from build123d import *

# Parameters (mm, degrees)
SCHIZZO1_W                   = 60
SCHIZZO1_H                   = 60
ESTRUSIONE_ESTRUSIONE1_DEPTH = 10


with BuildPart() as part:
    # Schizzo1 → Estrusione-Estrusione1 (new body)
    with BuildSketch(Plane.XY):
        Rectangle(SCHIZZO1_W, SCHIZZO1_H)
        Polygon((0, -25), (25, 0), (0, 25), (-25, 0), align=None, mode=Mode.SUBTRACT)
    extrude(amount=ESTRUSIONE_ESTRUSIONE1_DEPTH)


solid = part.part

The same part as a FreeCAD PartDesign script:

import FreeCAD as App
import Part
import Sketcher
from FreeCAD import Vector

doc = App.newDocument("Part")
body = doc.addObject("PartDesign::Body", "Body")

# Sketch on XY plane
sketch1 = body.newObject("Sketcher::SketchObject", "Sketch")
sketch1.AttachmentSupport = (doc.getObject("XY_Plane"), [""])
sketch1.MapMode = "FlatFace"
sketch1.addGeometry([
    Part.LineSegment(Vector(-30, 30, 0), Vector(-30, -30, 0)),  # 0
    Part.LineSegment(Vector(-30, -30, 0), Vector(30, -30, 0)),  # 1
    Part.LineSegment(Vector(30, -30, 0), Vector(30, 30, 0)),  # 2
    Part.LineSegment(Vector(30, 30, 0), Vector(-30, 30, 0)),  # 3
    Part.LineSegment(Vector(25, 0, 0), Vector(0, -25, 0)),  # 4
    Part.LineSegment(Vector(0, -25, 0), Vector(-25, 0, 0)),  # 5
    Part.LineSegment(Vector(-25, 0, 0), Vector(0, 25, 0)),  # 6
    Part.LineSegment(Vector(0, 25, 0), Vector(25, 0, 0)),  # 7
], False)
sketch1.addConstraint([
    Sketcher.Constraint("Coincident", 0, 2, 1, 1),
    Sketcher.Constraint("Coincident", 1, 2, 2, 1),
    Sketcher.Constraint("Coincident", 2, 2, 3, 1),
    Sketcher.Constraint("Coincident", 3, 2, 0, 1),
    Sketcher.Constraint("Coincident", 4, 2, 5, 1),
    Sketcher.Constraint("Coincident", 5, 2, 6, 1),
    Sketcher.Constraint("Coincident", 6, 2, 7, 1),
    Sketcher.Constraint("Coincident", 7, 2, 4, 1),
    Sketcher.Constraint("Vertical", 0),
    Sketcher.Constraint("Horizontal", 1),
    Sketcher.Constraint("Vertical", 2),
    Sketcher.Constraint("Horizontal", 3),
    Sketcher.Constraint("Symmetric", 0, 2, 2, 2, -1, 1),
    Sketcher.Constraint("Symmetric", 4, 2, 6, 2, -1, 1),
    Sketcher.Constraint("Symmetric", 5, 2, 7, 2, -1, 1),
    Sketcher.Constraint("PointOnObject", 4, 2, -2),
    Sketcher.Constraint("PointOnObject", 5, 2, -1),
    Sketcher.Constraint("Perpendicular", 4, 5),
    Sketcher.Constraint("Equal", 3, 0),
    Sketcher.Constraint("DistanceX", 1, 1, 1, 2, 60.0),
    Sketcher.Constraint("DistanceY", 4, 2, -1, 1, 25.0),
])
pad1 = body.newObject("PartDesign::Pad", "Pad")
pad1.Profile = sketch1
pad1.Length = 10

doc.recompute()
